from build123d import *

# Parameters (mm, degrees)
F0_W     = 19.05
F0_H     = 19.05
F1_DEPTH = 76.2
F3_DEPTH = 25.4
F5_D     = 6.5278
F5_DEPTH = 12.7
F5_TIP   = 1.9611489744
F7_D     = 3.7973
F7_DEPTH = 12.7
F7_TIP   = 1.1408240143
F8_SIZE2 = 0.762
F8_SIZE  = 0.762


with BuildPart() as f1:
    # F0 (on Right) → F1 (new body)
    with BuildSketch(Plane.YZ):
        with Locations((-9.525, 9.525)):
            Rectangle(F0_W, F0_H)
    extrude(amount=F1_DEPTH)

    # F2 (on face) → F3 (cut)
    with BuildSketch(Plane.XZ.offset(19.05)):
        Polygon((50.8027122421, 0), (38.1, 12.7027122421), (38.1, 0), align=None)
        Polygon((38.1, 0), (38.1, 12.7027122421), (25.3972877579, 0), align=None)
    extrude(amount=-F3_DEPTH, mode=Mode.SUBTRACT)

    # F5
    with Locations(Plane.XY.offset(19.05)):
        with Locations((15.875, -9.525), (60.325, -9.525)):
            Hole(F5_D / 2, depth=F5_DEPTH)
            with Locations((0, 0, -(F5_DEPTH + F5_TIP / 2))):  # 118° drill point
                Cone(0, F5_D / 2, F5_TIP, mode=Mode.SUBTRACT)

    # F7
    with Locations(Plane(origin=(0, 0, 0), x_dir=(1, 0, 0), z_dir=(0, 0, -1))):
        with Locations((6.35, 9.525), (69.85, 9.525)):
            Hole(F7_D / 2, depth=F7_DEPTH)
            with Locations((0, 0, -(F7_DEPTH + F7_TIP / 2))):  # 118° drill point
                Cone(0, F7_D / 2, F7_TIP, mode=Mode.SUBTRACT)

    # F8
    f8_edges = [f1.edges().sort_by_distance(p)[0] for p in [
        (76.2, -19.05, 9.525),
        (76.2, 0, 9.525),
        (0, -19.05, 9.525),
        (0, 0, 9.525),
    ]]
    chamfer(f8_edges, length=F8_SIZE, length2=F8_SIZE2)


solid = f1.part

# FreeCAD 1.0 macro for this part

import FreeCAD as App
import Part
import Sketcher
Q = App.Units.Quantity


def edges_at(feature, points):
    """Names of the edges that pass closest to the given points."""
    edges = feature.Shape.Edges
    near = lambda p: min(range(len(edges)), key=lambda i: edges[i].distToShape(Part.Vertex(*p))[0])
    return sorted({f"Edge{near(p) + 1}" for p in points})


def add_polygon(sketch, points):
    """Adds a closed chain of lines whose ends are joined by coincident constraints."""
    first, n = sketch.GeometryCount, len(points)
    for a, b in zip(points, points[1:] + points[:1]):
        sketch.addGeometry(Part.LineSegment(App.Vector(*a, 0), App.Vector(*b, 0)), False)
    for i in range(n):
        sketch.addConstraint(Sketcher.Constraint("Coincident", first + i, 2, first + (i + 1) % n, 1))

doc = App.newDocument("Part")
body = doc.addObject("PartDesign::Body", "Body")

sketch1 = doc.addObject("Sketcher::SketchObject", "Sketch")
body.addObject(sketch1)
sketch1.AttachmentSupport = (doc.YZ_Plane, [""])
sketch1.MapMode = "FlatFace"
add_polygon(sketch1, [(-19, 19), (-19, 0), (0, 0), (0, 19)])
sketch1.addConstraint([
    Sketcher.Constraint("Vertical", 0),
    Sketcher.Constraint("Horizontal", 1),
    Sketcher.Constraint("Vertical", 2),
    Sketcher.Constraint("Horizontal", 3),
    Sketcher.Constraint("Coincident", 1, 2, -1, 1),
    Sketcher.Constraint("Equal", 3, 0),
    Sketcher.Constraint("DistanceX", 1, 1, 1, 2, Q("0.75 in")),
])
pad1 = doc.addObject("PartDesign::Pad", "Pad")
body.addObject(pad1)
pad1.Profile = sketch1
pad1.Length = Q("3 in")

sketch2 = doc.addObject("Sketcher::SketchObject", "Sketch001")
body.addObject(sketch2)
sketch2.AttachmentSupport = (doc.XZ_Plane, [""])
sketch2.MapMode = "FlatFace"
sketch2.AttachmentOffset = App.Placement(App.Vector(0, 0, 0.75 * 25.4), App.Rotation())
add_polygon(sketch2, [(51, 0), (38, 13), (25, 0)])
sketch2.addConstraint([
    Sketcher.Constraint("Horizontal", 2),
    Sketcher.Constraint("PointOnObject", 1, 2, -1),
    Sketcher.Constraint("Perpendicular", 0, 1),
    Sketcher.Constraint("Equal", 0, 1),
    Sketcher.Constraint("DistanceX", -1, 1, 0, 2, Q("1.5 in")),
    Sketcher.Constraint("DistanceX", 2, 1, 2, 2, 25.405424),
])
pocket1 = doc.addObject("PartDesign::Pocket", "Pocket")
body.addObject(pocket1)
pocket1.Profile = sketch2
pocket1.Length = Q("1 in")

sketch3 = doc.addObject("Sketcher::SketchObject", "Sketch002")
body.addObject(sketch3)
sketch3.AttachmentSupport = (doc.XY_Plane, [""])
sketch3.MapMode = "FlatFace"
sketch3.AttachmentOffset = App.Placement(App.Vector(0, 0, 0.75 * 25.4), App.Rotation())
sketch3.addGeometry([
    Part.Circle(App.Vector(15.9, -9.5, 0), App.Vector(0, 0, 1), 3.3),
    Part.Circle(App.Vector(60.3, -9.5, 0), App.Vector(0, 0, 1), 3.3),
], False)
sketch3.addConstraint([
    Sketcher.Constraint("Equal", 0, 1),
    Sketcher.Constraint("Horizontal", 0, 3, 1, 3),
    Sketcher.Constraint("Diameter", 0, Q("0.257 in")),
    Sketcher.Constraint("DistanceX", 0, 3, 1, 3, Q("1.75 in")),
    Sketcher.Constraint("DistanceX", -1, 1, 0, 3, Q("0.625 in")),
    Sketcher.Constraint("DistanceY", 0, 3, -1, 1, Q("0.375 in")),
])
doc.recompute()
hole = doc.addObject("PartDesign::Hole", "Hole")
body.addObject(hole)
hole.Profile = sketch3
hole.ThreadType = "None"
hole.Diameter = Q("0.257 in")
hole.DepthType = "Dimension"
hole.Depth = Q("0.5 in")
hole.DrillPoint = "Angled"
hole.DrillPointAngle = 118

sketch4 = doc.addObject("Sketcher::SketchObject", "Sketch003")
body.addObject(sketch4)
sketch4.AttachmentSupport = (doc.XY_Plane, [""])
sketch4.MapMode = "FlatFace"
sketch4.addGeometry([
    Part.Circle(App.Vector(6.3, -9.5, 0), App.Vector(0, 0, 1), 1.9),
    Part.Circle(App.Vector(69.8, -9.5, 0), App.Vector(0, 0, 1), 1.9),
], False)
sketch4.addConstraint([
    Sketcher.Constraint("Equal", 0, 1),
    Sketcher.Constraint("Horizontal", 0, 3, 1, 3),
    Sketcher.Constraint("Diameter", 0, Q("0.1495 in")),
    Sketcher.Constraint("DistanceX", 0, 3, 1, 3, Q("2.5 in")),
    Sketcher.Constraint("DistanceX", -1, 1, 0, 3, Q("0.25 in")),
    Sketcher.Constraint("DistanceY", 0, 3, -1, 1, Q("0.375 in")),
])
doc.recompute()
hole2 = doc.addObject("PartDesign::Hole", "Hole001")
body.addObject(hole2)
hole2.Profile = sketch4
hole2.ThreadType = "None"
hole2.Diameter = Q("0.1495 in")
hole2.DepthType = "Dimension"
hole2.Depth = Q("0.5 in")
hole2.DrillPoint = "Angled"
hole2.DrillPointAngle = 118
hole2.Reversed = True
doc.recompute()

chamfer = doc.addObject("PartDesign::Chamfer", "Chamfer")
body.addObject(chamfer)
chamfer.Base = (hole2, edges_at(hole2, [
    (76.2, -19.05, 9.525),
    (76.2, 0, 9.525),
    (0, -19.05, 9.525),
    (0, 0, 9.525),
]))
chamfer.ChamferType = "Two distances"
chamfer.Size = Q("0.03 in")
chamfer.Size2 = Q("0.03 in")

doc.recompute()
